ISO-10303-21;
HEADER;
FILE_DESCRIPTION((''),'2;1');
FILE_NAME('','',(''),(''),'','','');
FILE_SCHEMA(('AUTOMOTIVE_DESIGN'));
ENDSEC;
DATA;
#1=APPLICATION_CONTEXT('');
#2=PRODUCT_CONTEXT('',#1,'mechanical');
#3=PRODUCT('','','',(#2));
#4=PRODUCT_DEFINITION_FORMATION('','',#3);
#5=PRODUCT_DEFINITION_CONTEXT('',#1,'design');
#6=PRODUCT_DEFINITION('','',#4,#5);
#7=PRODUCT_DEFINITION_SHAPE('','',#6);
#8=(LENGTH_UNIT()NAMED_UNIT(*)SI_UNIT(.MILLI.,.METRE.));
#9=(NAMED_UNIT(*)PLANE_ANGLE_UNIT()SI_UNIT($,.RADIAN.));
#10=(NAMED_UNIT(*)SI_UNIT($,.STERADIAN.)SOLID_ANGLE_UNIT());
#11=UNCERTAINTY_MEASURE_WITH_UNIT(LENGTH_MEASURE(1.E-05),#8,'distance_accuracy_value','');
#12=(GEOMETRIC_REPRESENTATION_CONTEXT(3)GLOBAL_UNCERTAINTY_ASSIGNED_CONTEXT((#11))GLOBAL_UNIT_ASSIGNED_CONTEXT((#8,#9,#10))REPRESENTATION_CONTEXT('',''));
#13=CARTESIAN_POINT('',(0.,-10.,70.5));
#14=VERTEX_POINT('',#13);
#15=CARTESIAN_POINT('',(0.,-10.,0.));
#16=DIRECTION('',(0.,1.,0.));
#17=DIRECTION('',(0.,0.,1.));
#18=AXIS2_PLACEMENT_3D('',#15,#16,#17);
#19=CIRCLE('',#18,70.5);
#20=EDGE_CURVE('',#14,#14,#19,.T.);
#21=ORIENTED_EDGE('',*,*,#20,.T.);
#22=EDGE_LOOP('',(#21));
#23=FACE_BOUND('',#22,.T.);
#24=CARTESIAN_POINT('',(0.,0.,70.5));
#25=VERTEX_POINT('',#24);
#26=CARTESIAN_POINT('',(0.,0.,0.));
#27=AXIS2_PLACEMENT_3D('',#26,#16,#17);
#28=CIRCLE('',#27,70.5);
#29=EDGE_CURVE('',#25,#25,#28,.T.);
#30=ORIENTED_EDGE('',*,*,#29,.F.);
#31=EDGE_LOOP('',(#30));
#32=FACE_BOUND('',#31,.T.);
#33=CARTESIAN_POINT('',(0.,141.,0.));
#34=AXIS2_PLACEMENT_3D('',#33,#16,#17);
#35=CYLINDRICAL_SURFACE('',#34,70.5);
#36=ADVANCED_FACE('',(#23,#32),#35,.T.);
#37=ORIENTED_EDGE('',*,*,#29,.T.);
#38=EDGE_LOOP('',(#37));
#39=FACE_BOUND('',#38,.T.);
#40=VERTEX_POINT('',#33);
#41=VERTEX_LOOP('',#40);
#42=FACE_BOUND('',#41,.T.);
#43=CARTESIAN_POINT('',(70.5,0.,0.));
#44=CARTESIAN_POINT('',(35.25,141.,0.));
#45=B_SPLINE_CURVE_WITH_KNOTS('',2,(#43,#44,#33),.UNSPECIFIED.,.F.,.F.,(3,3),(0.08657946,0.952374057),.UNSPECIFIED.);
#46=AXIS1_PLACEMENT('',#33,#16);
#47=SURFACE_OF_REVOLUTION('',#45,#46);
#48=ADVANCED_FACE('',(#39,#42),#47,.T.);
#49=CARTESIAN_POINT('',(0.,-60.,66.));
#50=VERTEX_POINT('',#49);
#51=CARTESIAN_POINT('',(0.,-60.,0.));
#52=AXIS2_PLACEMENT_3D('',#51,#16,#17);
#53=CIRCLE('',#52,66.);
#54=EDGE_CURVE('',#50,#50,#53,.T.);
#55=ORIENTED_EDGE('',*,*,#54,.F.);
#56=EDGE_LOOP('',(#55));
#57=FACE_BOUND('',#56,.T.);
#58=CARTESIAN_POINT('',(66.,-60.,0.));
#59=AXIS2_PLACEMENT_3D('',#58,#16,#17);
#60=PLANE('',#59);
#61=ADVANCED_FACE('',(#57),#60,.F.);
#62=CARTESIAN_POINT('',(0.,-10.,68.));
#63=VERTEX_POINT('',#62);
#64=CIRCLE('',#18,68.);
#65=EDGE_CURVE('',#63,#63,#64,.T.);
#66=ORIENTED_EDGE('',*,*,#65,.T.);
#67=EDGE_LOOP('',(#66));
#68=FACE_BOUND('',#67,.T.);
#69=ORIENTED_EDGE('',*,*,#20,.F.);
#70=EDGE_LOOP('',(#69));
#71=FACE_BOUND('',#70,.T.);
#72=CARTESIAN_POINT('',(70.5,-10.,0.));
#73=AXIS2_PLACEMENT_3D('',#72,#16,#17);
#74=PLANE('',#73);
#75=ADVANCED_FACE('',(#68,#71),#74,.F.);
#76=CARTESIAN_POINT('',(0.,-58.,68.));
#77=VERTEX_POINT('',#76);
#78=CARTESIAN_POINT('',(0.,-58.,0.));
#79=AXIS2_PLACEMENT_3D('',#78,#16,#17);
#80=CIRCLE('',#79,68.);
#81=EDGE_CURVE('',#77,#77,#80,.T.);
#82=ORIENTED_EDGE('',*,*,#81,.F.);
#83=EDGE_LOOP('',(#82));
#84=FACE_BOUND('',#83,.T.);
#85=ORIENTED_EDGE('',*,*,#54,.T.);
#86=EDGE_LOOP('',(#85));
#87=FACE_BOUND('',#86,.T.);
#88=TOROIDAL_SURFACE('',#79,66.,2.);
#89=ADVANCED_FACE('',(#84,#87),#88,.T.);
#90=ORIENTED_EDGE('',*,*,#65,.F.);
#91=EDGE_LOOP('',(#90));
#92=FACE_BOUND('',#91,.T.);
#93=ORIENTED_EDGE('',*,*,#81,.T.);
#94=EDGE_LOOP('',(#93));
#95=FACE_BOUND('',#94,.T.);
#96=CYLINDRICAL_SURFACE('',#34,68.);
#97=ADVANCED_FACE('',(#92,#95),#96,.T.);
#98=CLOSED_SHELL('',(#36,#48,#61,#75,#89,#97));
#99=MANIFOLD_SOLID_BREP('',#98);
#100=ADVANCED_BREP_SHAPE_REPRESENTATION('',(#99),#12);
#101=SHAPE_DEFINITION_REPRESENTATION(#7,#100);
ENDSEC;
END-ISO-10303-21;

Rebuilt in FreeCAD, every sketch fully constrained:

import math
import FreeCAD as App
import Part
import Sketcher
from FreeCAD import Vector

doc = App.newDocument("Part")
params = doc.addObject("Spreadsheet::Sheet", "Params")
for row, (alias, value) in enumerate([
    ("sketch1_radius", "2 mm"),
    ("sketch1_width", "66 mm"),
    ("sketch1_height", "201 mm"),
    ("sketch1_height2", "48 mm"),
    ("revolution_angle", "360 deg"),
], start=1):
    params.set(f"A{row}", alias)
    params.set(f"B{row}", "=" + value)
    params.setAlias(f"B{row}", alias)

body = doc.addObject("PartDesign::Body", "Body")

sketch1 = doc.addObject("Sketcher::SketchObject", "Sketch")
body.addObject(sketch1)
sketch1.AttachmentSupport = (doc.XY_Plane, [""])
sketch1.MapMode = "FlatFace"
sketch1.addGeometry(Part.LineSegment(Vector(0, 141, 0), Vector(0, -60, 0)), False)
sketch1.addGeometry(Part.LineSegment(Vector(0, -60, 0), Vector(66, -60, 0)), False)
sketch1.addGeometry(Part.ArcOfCircle(Part.Circle(Vector(66, -58, 0), Vector(0, 0, 1), 2), math.radians(-90), math.radians(0)), False)
sketch1.addGeometry(Part.LineSegment(Vector(68, -58, 0), Vector(68, -10, 0)), False)
sketch1.addGeometry(Part.LineSegment(Vector(68, -10, 0), Vector(70.5, -10, 0)), False)
sketch1.addGeometry(Part.LineSegment(Vector(70.5, -10, 0), Vector(70.5, 0, 0)), False)
sketch1.addGeometry(Part.BSplineCurve([Vector(0, 141, 0), Vector(35.25, 141, 0), Vector(70.5, 0, 0)], [3, 3], [0.08657946, 0.952374057], False, 2, [1, 1, 1], False), False)
sketch1.addConstraint(Sketcher.Constraint("Block", 6))
sketch1.addConstraint(Sketcher.Constraint("Coincident", 0, 2, 1, 1))
sketch1.addConstraint(Sketcher.Constraint("Tangent", 1, 2, 2, 1))
sketch1.addConstraint(Sketcher.Constraint("Tangent", 2, 2, 3, 1))
sketch1.addConstraint(Sketcher.Constraint("Coincident", 3, 2, 4, 1))
sketch1.addConstraint(Sketcher.Constraint("Coincident", 4, 2, 5, 1))
sketch1.addConstraint(Sketcher.Constraint("Coincident", 5, 2, 6, 2))
sketch1.addConstraint(Sketcher.Constraint("Coincident", 6, 1, 0, 1))
sketch1.addConstraint(Sketcher.Constraint("Vertical", 0))
sketch1.addConstraint(Sketcher.Constraint("Horizontal", 1))
sketch1.addConstraint(Sketcher.Constraint("Vertical", 3))
sketch1.addConstraint(Sketcher.Constraint("Horizontal", 4))
sketch1.addConstraint(Sketcher.Constraint("Vertical", 5))
sketch1.addConstraint(Sketcher.Constraint("Radius", 2, 2.0))
sketch1.addConstraint(Sketcher.Constraint("DistanceX", 1, 1, 1, 2, 66.0))
sketch1.addConstraint(Sketcher.Constraint("DistanceY", 0, 2, 0, 1, 201.0))
sketch1.addConstraint(Sketcher.Constraint("DistanceY", 3, 1, 3, 2, 48.0))
sketch1.setExpression("Constraints[13]", "Params.sketch1_radius")
sketch1.setExpression("Constraints[14]", "Params.sketch1_width")
sketch1.setExpression("Constraints[15]", "Params.sketch1_height")
sketch1.setExpression("Constraints[16]", "Params.sketch1_height2")
revolution = doc.addObject("PartDesign::Revolution", "Revolution")
body.addObject(revolution)
revolution.Profile = sketch1
revolution.ReferenceAxis = (sketch1, ["V_Axis"])
revolution.setExpression("Angle", "Params.revolution_angle")

doc.recompute()
